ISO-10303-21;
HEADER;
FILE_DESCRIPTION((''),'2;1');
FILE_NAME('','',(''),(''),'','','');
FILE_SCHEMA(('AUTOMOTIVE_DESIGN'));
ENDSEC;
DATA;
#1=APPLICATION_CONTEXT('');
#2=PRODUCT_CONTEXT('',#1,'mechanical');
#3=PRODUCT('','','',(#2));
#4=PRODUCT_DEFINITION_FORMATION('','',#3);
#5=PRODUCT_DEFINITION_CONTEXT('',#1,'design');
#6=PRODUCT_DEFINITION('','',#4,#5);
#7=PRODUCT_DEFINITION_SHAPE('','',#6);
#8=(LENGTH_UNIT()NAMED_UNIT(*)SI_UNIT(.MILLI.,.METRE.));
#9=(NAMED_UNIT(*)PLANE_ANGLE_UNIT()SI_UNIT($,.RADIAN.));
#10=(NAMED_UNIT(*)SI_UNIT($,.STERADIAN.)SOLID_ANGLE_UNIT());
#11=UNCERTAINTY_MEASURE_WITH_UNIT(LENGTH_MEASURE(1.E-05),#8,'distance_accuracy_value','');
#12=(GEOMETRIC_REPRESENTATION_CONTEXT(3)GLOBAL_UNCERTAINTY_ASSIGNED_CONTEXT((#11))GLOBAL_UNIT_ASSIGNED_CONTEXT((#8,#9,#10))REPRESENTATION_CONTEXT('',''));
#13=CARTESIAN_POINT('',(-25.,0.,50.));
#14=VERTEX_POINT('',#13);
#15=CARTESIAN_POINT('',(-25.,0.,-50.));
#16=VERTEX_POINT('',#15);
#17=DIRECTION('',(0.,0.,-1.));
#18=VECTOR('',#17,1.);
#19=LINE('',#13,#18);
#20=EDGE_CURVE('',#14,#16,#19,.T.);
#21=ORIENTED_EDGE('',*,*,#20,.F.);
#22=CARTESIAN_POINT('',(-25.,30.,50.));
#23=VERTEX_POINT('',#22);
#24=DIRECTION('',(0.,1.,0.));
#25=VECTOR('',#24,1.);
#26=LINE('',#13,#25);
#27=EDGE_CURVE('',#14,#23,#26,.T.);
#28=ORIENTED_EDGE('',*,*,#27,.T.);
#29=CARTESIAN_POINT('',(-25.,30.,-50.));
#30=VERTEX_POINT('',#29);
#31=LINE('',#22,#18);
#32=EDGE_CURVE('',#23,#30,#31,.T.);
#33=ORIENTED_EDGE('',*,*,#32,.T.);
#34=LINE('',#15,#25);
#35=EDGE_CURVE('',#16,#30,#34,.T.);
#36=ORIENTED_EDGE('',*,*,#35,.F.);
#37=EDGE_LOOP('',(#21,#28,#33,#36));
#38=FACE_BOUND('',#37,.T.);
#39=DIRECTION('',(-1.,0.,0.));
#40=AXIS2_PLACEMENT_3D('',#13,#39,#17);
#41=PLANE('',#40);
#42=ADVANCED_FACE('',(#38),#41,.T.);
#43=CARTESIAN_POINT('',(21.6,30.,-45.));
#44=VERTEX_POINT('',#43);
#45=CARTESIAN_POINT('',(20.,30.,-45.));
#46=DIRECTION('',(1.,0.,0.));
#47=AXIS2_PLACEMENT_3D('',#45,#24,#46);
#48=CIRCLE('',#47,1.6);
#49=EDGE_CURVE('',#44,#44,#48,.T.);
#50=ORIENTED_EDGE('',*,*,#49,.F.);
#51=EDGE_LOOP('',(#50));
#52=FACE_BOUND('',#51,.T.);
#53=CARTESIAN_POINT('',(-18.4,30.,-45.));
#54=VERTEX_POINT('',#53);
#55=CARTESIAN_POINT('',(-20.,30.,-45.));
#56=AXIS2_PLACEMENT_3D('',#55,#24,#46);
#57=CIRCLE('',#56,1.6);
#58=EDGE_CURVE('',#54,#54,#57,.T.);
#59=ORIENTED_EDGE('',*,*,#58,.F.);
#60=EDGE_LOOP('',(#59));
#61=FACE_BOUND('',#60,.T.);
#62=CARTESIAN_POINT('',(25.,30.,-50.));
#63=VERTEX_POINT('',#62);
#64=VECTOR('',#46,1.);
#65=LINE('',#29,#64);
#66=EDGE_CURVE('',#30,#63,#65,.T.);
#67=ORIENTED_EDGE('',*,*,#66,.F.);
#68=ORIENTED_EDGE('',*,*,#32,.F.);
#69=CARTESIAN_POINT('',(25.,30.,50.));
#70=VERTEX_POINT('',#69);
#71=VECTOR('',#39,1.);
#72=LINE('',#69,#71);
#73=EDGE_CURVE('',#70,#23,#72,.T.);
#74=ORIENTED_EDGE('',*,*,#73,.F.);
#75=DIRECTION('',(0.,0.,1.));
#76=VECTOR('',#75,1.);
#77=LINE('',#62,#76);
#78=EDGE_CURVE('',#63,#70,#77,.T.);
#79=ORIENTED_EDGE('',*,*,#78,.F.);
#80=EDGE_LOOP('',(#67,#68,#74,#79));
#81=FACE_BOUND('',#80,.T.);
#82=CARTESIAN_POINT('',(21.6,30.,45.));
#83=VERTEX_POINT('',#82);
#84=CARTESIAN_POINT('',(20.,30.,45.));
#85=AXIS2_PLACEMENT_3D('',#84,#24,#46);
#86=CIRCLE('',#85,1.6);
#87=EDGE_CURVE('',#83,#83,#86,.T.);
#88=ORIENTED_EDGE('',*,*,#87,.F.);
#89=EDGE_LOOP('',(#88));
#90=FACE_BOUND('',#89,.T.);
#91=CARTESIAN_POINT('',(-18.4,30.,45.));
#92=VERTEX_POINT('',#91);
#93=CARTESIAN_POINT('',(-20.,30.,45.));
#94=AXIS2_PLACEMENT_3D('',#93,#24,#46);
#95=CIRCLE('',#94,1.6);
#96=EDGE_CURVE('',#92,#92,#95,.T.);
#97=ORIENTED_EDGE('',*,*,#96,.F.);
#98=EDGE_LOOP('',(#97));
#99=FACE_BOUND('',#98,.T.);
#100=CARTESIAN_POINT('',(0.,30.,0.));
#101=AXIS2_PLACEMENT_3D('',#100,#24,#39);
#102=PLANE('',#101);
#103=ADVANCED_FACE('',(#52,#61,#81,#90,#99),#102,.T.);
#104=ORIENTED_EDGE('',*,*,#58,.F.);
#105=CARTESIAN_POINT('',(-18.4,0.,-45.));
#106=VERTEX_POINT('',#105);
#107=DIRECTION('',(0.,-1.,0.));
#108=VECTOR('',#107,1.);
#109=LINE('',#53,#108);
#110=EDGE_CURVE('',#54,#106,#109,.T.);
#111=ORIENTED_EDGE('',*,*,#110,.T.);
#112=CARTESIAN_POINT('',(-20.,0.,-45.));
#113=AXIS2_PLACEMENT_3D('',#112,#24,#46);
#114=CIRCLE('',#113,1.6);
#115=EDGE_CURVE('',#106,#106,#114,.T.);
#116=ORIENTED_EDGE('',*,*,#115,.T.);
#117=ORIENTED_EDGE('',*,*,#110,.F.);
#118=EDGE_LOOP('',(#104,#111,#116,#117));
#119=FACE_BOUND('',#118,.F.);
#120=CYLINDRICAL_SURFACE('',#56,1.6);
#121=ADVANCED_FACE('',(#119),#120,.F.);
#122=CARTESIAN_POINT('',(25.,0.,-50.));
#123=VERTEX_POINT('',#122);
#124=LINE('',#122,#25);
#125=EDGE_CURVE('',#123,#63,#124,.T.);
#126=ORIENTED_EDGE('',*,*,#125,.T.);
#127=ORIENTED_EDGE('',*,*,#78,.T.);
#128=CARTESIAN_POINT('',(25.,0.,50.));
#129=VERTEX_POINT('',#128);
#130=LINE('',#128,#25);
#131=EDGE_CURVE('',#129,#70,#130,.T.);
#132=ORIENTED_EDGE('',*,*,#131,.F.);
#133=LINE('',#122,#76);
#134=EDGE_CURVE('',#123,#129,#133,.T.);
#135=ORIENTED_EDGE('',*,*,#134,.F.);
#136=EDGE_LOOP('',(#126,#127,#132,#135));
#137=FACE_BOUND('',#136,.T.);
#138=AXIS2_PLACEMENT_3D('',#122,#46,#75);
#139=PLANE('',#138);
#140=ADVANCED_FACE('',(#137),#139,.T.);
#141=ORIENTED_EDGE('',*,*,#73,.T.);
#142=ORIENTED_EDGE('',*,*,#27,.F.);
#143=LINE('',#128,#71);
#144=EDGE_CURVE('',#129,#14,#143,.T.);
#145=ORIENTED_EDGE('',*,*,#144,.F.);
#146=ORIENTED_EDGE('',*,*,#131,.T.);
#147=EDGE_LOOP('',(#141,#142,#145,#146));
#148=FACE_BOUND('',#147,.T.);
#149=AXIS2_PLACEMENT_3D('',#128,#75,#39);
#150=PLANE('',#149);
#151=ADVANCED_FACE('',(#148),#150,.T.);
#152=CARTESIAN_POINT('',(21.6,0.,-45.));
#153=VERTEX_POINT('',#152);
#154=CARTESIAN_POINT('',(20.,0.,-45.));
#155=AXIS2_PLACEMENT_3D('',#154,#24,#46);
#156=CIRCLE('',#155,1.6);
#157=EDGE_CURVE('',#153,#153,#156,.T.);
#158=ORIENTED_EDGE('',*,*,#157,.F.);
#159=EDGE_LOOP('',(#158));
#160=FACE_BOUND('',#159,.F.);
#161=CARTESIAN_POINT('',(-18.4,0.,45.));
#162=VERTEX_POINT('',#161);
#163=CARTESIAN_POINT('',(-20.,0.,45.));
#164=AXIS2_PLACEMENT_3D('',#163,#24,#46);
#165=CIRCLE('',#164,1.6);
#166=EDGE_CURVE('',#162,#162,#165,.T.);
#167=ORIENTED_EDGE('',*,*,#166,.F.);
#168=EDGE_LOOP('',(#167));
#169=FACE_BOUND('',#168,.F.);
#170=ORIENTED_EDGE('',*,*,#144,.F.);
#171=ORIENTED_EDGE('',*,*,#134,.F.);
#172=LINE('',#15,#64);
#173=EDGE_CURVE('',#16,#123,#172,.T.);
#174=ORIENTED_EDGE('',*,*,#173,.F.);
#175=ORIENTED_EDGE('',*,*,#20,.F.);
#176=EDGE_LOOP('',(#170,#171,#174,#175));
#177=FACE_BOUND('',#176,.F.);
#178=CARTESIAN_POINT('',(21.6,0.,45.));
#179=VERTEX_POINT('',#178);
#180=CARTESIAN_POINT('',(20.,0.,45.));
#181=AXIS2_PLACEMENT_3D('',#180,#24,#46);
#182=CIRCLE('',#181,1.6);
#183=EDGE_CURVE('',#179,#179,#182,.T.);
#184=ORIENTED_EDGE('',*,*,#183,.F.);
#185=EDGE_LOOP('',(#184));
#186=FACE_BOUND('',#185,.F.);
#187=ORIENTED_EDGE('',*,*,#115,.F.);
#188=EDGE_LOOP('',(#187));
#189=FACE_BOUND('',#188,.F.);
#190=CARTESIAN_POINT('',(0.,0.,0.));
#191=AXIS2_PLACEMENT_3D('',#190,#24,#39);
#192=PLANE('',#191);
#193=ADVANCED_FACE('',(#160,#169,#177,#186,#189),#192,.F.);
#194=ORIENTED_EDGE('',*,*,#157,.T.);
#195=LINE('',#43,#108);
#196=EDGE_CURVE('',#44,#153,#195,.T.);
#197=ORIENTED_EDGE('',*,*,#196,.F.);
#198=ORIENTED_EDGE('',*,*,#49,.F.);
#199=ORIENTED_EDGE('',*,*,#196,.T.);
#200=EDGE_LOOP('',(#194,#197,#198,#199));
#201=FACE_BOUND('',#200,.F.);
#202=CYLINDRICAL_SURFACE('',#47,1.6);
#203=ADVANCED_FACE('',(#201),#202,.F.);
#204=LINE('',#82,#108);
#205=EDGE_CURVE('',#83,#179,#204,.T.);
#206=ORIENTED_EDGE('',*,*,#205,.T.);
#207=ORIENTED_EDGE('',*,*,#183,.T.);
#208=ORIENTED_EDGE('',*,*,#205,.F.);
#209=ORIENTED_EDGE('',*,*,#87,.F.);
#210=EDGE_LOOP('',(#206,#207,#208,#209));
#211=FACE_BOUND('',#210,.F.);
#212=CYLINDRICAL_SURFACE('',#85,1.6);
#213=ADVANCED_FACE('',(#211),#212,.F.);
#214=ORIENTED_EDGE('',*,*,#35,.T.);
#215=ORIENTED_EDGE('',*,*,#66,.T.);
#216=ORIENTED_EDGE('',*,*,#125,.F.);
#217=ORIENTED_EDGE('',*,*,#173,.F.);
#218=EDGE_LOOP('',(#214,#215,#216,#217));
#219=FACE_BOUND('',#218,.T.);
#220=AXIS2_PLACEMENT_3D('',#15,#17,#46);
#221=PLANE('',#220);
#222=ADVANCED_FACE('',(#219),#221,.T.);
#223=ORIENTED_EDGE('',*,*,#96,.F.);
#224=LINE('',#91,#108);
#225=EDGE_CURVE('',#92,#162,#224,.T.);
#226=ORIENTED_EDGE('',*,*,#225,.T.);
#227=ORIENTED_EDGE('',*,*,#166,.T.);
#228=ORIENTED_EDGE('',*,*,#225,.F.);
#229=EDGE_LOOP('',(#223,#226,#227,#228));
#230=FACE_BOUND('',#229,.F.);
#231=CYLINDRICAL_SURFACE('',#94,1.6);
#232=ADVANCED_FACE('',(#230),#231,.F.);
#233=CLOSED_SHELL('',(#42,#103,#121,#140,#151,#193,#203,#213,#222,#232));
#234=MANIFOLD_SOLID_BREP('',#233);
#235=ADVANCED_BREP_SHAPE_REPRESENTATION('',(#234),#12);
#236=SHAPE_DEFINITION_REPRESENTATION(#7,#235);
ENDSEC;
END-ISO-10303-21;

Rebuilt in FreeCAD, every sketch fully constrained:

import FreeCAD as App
import Part
import Sketcher

V = App.Vector
Q = App.Units.Quantity


def add_polygon(sketch, points):
    """Adds a closed chain of lines whose ends are joined by coincident constraints."""
    first, n = sketch.GeometryCount, len(points)
    for a, b in zip(points, points[1:] + points[:1]):
        sketch.addGeometry(Part.LineSegment(App.Vector(*a, 0), App.Vector(*b, 0)), False)
    for i in range(n):
        sketch.addConstraint(Sketcher.Constraint("Coincident", first + i, 2, first + (i + 1) % n, 1))

doc = App.newDocument("Part")
body = doc.addObject("PartDesign::Body", "Body")

# Sketch on XZ plane
sketch1 = doc.addObject("Sketcher::SketchObject", "Sketch")
body.addObject(sketch1)
sketch1.AttachmentSupport = (doc.XZ_Plane, [""])
sketch1.MapMode = "FlatFace"
add_polygon(sketch1, [(-25, 50), (25, 50), (25, -50), (-25, -50)])  # lines 0-3
sketch1.addConstraint(Sketcher.Constraint("Horizontal", 0))
sketch1.addConstraint(Sketcher.Constraint("Vertical", 1))
sketch1.addConstraint(Sketcher.Constraint("Horizontal", 2))
sketch1.addConstraint(Sketcher.Constraint("Vertical", 3))
sketch1.addConstraint(Sketcher.Constraint("Symmetric", 0, 2, 2, 2, -1, 1))
sketch1.addConstraint(Sketcher.Constraint("DistanceX", 0, 1, 0, 2, Q("50 mm")))
sketch1.addConstraint(Sketcher.Constraint("DistanceY", 1, 2, 1, 1, Q("100 mm")))
pad1 = doc.addObject("PartDesign::Pad", "Pad")
body.addObject(pad1)
pad1.Profile = sketch1
pad1.Length = 30
pad1.Reversed = True

# Sketch on XZ plane
sketch2 = doc.addObject("Sketcher::SketchObject", "Sketch001")
body.addObject(sketch2)
sketch2.AttachmentSupport = (doc.XZ_Plane, [""])
sketch2.MapMode = "FlatFace"
sketch2.AttachmentOffset = App.Placement(V(0, 0, -30), App.Rotation())
sketch2.addGeometry(Part.Circle(V(20, -45, 0), V(0, 0, 1), 1.6), False)
sketch2.addGeometry(Part.Circle(V(20, 45, 0), V(0, 0, 1), 1.6), False)
sketch2.addGeometry(Part.Circle(V(-20, 45, 0), V(0, 0, 1), 1.6), False)
sketch2.addGeometry(Part.Circle(V(-20, -45, 0), V(0, 0, 1), 1.6), False)
sketch2.addConstraint(Sketcher.Constraint("Equal", 0, 1))
sketch2.addConstraint(Sketcher.Constraint("Equal", 1, 2))
sketch2.addConstraint(Sketcher.Constraint("Equal", 2, 3))
sketch2.addConstraint(Sketcher.Constraint("Symmetric", 0, 3, 2, 3, -1, 1))
sketch2.addConstraint(Sketcher.Constraint("Symmetric", 1, 3, 3, 3, -1, 1))
sketch2.addConstraint(Sketcher.Constraint("Symmetric", 1, 3, 2, 3, -2))
sketch2.addConstraint(Sketcher.Constraint("Diameter", 0, Q("3.2 mm")))
sketch2.addConstraint(Sketcher.Constraint("DistanceX", -1, 1, 0, 3, Q("20 mm")))
sketch2.addConstraint(Sketcher.Constraint("DistanceY", 0, 3, -1, 1, Q("45 mm")))
pocket1 = doc.addObject("PartDesign::Pocket", "Pocket")
body.addObject(pocket1)
pocket1.Profile = sketch2
pocket1.Length = 30
pocket1.Reversed = True

doc.recompute()
